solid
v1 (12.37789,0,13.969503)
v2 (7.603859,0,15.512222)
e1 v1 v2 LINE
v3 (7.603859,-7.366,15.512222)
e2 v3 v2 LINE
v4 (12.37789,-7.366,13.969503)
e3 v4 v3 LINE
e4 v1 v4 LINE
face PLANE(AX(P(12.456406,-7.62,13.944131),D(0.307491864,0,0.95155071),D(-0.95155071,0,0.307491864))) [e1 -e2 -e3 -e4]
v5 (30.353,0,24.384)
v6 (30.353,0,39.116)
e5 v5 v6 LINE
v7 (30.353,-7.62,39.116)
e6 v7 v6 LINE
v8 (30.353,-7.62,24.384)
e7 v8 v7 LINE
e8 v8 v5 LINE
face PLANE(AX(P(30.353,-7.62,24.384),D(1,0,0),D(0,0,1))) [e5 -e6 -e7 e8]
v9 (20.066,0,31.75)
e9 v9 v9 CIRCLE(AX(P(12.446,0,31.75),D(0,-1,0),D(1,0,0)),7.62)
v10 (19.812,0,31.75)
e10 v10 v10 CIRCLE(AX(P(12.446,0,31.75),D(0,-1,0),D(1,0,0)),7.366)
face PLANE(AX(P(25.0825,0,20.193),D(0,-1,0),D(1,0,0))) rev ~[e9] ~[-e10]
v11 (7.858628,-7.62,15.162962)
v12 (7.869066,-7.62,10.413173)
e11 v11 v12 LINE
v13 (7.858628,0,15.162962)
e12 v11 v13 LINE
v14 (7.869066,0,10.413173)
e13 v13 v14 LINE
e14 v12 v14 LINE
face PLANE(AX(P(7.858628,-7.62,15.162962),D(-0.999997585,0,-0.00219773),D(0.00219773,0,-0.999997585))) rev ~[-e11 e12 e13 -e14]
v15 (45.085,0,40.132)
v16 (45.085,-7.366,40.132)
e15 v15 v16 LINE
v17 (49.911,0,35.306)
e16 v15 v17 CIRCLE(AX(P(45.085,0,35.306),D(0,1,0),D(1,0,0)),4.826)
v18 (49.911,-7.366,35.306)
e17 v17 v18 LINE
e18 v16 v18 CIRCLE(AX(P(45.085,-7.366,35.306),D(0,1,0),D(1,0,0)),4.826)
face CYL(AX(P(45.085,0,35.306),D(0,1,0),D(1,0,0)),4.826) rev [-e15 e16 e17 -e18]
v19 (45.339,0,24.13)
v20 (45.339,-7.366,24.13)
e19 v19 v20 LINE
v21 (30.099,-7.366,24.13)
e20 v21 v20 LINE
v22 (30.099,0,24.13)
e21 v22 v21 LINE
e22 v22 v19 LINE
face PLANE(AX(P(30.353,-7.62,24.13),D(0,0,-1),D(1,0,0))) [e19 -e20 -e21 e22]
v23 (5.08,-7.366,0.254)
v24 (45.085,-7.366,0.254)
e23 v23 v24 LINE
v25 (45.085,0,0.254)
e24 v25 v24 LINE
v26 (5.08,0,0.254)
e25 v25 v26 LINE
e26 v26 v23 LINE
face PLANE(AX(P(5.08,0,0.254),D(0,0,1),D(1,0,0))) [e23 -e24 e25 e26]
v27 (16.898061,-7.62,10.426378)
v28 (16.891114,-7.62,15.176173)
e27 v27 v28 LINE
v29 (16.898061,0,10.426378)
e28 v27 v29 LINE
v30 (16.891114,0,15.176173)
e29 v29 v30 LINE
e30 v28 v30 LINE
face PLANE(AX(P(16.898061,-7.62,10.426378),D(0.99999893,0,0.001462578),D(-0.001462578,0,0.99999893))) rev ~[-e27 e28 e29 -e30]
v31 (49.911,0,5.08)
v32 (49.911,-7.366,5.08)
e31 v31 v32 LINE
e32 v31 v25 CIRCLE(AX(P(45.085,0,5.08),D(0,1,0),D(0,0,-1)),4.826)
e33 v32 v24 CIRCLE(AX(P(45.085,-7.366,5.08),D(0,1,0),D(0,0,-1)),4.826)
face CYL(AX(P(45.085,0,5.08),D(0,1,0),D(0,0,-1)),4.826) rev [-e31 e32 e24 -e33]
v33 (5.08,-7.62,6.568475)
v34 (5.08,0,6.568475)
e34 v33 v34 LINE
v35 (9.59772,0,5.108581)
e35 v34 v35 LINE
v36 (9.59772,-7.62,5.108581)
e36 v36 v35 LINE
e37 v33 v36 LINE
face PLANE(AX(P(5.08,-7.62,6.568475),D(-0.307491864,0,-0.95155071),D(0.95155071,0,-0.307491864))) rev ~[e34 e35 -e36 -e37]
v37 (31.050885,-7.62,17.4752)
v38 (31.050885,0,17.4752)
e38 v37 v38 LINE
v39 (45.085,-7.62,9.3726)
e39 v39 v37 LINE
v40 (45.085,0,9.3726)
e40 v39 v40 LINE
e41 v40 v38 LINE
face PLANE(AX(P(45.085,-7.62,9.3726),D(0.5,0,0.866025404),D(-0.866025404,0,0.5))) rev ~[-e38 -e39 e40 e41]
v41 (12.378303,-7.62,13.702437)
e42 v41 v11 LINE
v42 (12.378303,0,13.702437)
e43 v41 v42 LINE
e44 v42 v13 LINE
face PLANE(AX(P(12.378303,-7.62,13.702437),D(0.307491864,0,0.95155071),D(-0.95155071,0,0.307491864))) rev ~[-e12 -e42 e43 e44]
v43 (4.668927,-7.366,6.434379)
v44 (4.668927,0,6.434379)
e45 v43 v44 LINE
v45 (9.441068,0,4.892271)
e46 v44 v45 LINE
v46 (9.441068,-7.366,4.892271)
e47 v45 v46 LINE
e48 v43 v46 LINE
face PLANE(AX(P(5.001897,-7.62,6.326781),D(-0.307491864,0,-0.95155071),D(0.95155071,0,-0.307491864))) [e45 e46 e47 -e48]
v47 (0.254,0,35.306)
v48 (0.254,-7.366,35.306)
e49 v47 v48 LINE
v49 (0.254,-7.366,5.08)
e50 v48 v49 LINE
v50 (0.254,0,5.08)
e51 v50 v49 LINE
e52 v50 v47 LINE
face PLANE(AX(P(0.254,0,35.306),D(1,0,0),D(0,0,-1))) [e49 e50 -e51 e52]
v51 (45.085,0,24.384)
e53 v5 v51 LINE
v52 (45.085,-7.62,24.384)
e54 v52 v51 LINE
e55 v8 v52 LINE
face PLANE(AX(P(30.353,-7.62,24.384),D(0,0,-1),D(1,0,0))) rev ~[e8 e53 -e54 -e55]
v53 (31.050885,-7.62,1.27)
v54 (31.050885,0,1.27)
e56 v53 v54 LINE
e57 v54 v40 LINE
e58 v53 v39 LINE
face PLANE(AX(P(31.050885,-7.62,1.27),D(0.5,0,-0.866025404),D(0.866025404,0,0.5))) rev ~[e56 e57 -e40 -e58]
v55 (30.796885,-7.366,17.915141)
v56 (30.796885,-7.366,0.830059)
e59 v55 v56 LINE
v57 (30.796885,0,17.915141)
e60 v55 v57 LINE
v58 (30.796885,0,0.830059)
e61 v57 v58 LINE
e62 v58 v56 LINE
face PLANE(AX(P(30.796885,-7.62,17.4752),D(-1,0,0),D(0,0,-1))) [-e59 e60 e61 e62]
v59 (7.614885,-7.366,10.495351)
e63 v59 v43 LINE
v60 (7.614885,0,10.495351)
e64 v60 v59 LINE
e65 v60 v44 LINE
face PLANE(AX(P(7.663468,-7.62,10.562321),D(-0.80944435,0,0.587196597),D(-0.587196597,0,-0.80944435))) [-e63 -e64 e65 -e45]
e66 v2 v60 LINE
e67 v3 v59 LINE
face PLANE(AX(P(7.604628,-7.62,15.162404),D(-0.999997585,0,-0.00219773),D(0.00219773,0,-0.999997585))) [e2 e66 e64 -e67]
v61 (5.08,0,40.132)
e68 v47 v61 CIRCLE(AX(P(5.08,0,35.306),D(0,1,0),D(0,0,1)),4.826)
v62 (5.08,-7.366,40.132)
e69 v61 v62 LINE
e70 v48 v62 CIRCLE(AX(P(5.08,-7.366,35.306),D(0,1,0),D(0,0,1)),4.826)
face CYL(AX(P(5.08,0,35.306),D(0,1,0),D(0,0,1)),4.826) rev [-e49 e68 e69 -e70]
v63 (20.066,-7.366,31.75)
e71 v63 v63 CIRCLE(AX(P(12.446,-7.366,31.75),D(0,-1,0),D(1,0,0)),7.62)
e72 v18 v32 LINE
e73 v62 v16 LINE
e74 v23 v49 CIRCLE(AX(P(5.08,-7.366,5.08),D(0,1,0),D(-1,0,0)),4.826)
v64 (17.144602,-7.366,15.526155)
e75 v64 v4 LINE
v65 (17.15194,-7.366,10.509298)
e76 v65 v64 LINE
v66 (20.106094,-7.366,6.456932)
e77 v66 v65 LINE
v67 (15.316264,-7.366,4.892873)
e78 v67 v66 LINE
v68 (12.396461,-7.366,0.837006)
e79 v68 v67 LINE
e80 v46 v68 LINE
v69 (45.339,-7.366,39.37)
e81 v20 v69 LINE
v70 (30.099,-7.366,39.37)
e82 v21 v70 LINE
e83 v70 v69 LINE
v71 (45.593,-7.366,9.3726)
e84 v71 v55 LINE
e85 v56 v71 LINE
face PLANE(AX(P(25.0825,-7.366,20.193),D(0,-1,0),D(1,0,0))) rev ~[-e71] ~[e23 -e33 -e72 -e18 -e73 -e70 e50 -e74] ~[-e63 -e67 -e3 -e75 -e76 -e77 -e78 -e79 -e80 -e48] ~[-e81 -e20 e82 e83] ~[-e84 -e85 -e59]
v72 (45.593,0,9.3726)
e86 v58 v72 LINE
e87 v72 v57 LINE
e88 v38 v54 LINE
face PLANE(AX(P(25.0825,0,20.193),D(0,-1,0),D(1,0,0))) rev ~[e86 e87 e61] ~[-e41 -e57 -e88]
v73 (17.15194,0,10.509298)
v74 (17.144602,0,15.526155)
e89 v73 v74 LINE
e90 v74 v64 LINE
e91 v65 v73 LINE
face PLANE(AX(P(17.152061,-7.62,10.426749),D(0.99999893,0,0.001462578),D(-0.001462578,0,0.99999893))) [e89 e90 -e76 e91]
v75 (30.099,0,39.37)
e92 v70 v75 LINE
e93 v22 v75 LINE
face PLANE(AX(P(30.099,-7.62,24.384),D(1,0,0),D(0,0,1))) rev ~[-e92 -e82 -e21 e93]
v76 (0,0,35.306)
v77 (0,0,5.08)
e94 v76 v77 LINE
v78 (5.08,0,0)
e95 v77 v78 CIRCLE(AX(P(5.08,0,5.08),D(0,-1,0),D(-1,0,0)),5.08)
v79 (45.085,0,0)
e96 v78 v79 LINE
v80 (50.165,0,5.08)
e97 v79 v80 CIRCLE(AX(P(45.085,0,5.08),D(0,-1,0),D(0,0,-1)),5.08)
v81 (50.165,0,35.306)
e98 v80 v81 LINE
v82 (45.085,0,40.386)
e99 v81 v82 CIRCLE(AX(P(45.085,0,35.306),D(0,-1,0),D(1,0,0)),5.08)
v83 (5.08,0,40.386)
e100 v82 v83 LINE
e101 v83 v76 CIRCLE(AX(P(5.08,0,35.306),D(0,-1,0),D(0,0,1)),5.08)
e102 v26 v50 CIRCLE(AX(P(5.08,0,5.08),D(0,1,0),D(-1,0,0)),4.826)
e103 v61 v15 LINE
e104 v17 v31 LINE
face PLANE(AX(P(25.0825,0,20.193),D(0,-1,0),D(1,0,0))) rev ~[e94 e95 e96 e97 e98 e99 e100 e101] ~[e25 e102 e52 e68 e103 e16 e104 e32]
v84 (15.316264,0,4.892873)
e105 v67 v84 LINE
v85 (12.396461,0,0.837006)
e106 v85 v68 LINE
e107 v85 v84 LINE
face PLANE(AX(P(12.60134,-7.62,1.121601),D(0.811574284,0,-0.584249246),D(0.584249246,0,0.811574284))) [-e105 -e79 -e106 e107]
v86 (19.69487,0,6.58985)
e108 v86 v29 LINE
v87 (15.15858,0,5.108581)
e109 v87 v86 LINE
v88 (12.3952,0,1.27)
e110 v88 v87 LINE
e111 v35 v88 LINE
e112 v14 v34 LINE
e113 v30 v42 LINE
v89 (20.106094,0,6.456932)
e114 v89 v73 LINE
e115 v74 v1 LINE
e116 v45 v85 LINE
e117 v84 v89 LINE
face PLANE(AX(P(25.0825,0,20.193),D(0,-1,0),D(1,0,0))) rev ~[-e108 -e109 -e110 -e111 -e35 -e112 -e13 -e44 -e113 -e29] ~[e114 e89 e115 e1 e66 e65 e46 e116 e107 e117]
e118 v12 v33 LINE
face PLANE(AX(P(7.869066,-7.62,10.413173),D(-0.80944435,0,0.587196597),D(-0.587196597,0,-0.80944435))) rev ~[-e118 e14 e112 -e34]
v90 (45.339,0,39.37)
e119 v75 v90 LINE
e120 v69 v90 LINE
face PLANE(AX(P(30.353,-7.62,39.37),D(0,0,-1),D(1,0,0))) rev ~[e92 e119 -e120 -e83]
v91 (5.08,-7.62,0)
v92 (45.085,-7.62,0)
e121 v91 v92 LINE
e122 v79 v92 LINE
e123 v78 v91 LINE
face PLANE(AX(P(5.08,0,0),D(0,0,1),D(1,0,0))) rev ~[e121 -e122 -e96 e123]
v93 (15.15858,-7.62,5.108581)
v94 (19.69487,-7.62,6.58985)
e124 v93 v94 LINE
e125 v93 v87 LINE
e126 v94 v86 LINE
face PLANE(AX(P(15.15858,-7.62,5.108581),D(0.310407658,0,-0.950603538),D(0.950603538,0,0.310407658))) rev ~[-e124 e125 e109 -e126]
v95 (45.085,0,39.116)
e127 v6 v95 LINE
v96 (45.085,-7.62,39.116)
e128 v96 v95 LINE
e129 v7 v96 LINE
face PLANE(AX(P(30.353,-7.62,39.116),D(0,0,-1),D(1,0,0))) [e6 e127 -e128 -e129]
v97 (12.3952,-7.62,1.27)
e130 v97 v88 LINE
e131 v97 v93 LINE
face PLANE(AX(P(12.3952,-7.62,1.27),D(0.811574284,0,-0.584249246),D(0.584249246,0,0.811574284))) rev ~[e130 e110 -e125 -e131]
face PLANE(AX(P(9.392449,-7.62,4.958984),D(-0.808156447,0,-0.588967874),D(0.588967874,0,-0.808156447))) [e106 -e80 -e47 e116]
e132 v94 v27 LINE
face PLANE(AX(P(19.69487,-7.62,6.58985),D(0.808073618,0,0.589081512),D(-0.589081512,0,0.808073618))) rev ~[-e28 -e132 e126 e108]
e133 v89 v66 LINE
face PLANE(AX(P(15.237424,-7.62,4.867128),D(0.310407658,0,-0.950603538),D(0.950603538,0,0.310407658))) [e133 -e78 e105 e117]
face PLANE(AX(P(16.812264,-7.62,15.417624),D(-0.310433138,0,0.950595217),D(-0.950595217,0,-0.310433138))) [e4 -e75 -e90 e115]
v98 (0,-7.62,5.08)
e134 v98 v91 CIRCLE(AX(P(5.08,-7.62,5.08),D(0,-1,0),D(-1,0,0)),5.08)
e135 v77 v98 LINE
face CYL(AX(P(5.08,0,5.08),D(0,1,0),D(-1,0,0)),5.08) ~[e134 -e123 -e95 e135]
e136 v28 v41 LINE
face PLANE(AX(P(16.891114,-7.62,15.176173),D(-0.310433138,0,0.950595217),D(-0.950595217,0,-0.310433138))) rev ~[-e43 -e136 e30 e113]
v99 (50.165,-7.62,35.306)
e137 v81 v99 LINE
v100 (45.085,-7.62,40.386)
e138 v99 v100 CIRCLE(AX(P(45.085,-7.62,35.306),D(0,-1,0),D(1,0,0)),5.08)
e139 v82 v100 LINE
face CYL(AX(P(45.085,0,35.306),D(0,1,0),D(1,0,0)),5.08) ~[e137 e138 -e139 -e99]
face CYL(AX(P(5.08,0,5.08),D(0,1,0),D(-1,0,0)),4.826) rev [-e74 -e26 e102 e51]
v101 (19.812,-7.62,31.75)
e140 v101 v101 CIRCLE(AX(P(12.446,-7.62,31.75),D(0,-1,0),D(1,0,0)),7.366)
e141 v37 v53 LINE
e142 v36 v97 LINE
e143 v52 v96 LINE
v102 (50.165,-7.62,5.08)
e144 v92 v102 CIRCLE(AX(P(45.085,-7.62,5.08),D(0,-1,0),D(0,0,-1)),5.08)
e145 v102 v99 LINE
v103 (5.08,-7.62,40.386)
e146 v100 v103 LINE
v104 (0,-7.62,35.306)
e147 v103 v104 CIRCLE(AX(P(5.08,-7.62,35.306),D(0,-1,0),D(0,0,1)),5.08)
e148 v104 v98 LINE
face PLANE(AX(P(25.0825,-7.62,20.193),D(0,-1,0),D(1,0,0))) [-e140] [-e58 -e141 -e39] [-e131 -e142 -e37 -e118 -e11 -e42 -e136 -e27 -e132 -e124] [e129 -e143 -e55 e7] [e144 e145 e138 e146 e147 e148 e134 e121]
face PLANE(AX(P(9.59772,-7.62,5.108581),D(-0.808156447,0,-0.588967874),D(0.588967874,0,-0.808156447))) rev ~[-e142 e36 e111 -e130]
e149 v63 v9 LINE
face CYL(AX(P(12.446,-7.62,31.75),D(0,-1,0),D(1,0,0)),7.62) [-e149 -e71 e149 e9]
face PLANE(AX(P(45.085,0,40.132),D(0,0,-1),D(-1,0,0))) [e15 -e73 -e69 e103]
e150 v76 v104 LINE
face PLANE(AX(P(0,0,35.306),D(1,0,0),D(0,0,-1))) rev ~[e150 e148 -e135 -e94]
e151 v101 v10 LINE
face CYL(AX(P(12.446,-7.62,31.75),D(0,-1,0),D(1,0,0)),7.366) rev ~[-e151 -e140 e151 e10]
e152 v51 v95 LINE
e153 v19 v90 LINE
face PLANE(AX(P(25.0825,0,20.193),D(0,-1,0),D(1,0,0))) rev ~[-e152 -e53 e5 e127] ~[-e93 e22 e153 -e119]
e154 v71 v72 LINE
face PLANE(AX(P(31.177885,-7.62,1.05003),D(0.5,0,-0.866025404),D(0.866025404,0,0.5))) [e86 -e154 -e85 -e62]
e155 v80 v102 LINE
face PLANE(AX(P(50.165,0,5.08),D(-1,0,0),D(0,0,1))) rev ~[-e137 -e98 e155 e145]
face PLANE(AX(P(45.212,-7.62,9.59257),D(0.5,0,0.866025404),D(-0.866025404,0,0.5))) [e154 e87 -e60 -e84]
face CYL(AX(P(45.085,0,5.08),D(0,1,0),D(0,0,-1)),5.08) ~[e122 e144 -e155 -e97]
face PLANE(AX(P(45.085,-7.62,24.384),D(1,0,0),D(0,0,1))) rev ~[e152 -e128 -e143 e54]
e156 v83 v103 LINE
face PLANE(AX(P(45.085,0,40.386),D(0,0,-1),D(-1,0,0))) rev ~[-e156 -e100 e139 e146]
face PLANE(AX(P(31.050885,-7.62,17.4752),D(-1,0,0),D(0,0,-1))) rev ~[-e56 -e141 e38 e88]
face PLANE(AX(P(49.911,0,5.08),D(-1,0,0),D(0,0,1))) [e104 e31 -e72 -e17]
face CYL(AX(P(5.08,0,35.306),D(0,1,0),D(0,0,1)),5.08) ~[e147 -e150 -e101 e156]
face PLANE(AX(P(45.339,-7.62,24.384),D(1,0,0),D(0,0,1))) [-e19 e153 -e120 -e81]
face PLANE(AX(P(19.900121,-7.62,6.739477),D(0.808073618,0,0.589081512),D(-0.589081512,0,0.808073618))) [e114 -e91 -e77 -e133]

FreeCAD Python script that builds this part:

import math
import FreeCAD as App
import Part
import Sketcher
from FreeCAD import Vector
Q = App.Units.Quantity


def faces_at(feature, points):
    """Names of the faces that lie closest to the given points."""
    faces = feature.Shape.Faces
    near = lambda p: min(range(len(faces)), key=lambda i: faces[i].distToShape(Part.Vertex(*p))[0])
    return sorted({f"Face{near(p) + 1}" for p in points})

doc = App.newDocument("Part")
body = doc.addObject("PartDesign::Body", "Body")

sketch1 = body.newObject("Sketcher::SketchObject", "Sketch")
sketch1.AttachmentSupport = (doc.getObject("XZ_Plane"), [""])
sketch1.MapMode = "FlatFace"
sketch1.addGeometry(Part.ArcOfCircle(Part.Circle(Vector(5.08, 5.08, 0), Vector(0, 0, 1), 5.08), math.radians(180), math.radians(270)), False)
sketch1.addGeometry(Part.LineSegment(Vector(5.08, 0, 0), Vector(45.085, 0, 0)), False)
sketch1.addGeometry(Part.ArcOfCircle(Part.Circle(Vector(45.085, 5.08, 0), Vector(0, 0, 1), 5.08), math.radians(-90), math.radians(0)), False)
sketch1.addGeometry(Part.LineSegment(Vector(50.165, 5.08, 0), Vector(50.165, 35.306, 0)), False)
sketch1.addGeometry(Part.ArcOfCircle(Part.Circle(Vector(45.085, 35.306, 0), Vector(0, 0, 1), 5.08), math.radians(0), math.radians(90)), False)
sketch1.addGeometry(Part.LineSegment(Vector(45.085, 40.386, 0), Vector(5.08, 40.386, 0)), False)
sketch1.addGeometry(Part.ArcOfCircle(Part.Circle(Vector(5.08, 35.306, 0), Vector(0, 0, 1), 5.08), math.radians(90), math.radians(180)), False)
sketch1.addGeometry(Part.LineSegment(Vector(0, 35.306, 0), Vector(0, 5.08, 0)), False)
sketch1.addConstraint(Sketcher.Constraint("Tangent", 0, 2, 1, 1))
sketch1.addConstraint(Sketcher.Constraint("Tangent", 1, 2, 2, 1))
sketch1.addConstraint(Sketcher.Constraint("Tangent", 2, 2, 3, 1))
sketch1.addConstraint(Sketcher.Constraint("Tangent", 3, 2, 4, 1))
sketch1.addConstraint(Sketcher.Constraint("Tangent", 4, 2, 5, 1))
sketch1.addConstraint(Sketcher.Constraint("Tangent", 5, 2, 6, 1))
sketch1.addConstraint(Sketcher.Constraint("Tangent", 6, 2, 7, 1))
sketch1.addConstraint(Sketcher.Constraint("Tangent", 7, 2, 0, 1))
sketch1.addConstraint(Sketcher.Constraint("Horizontal", 1))
sketch1.addConstraint(Sketcher.Constraint("Vertical", 3))
sketch1.addConstraint(Sketcher.Constraint("Horizontal", 5))
sketch1.addConstraint(Sketcher.Constraint("Vertical", 7))
sketch1.addConstraint(Sketcher.Constraint("Equal", 0, 2))
sketch1.addConstraint(Sketcher.Constraint("Equal", 2, 4))
sketch1.addConstraint(Sketcher.Constraint("Equal", 4, 6))
sketch1.addConstraint(Sketcher.Constraint("PointOnObject", 0, 2, -1))
sketch1.addConstraint(Sketcher.Constraint("PointOnObject", 6, 2, -2))
sketch1.addConstraint(Sketcher.Constraint("Radius", 0, Q("0.2 in")))
sketch1.addConstraint(Sketcher.Constraint("DistanceY", 3, 1, 3, 2, Q("1.19 in")))
sketch1.addConstraint(Sketcher.Constraint("DistanceX", 1, 1, 1, 2, Q("1.575 in")))
pad1 = body.newObject("PartDesign::Pad", "Pad")
pad1.Profile = sketch1
pad1.Length = Q("0.3 in")

sketch2 = body.newObject("Sketcher::SketchObject", "Sketch001")
sketch2.AttachmentSupport = (doc.getObject("XZ_Plane"), [""])
sketch2.MapMode = "FlatFace"
sketch2.AttachmentOffset = App.Placement(Vector(0, 0, 0.3 * 25.4), App.Rotation())
sketch2.addGeometry(Part.LineSegment(Vector(30.353, 39.116, 0), Vector(30.353, 24.384, 0)), False)
sketch2.addGeometry(Part.LineSegment(Vector(30.353, 24.384, 0), Vector(45.085, 24.384, 0)), False)
sketch2.addGeometry(Part.LineSegment(Vector(45.085, 24.384, 0), Vector(45.085, 39.116, 0)), False)
sketch2.addGeometry(Part.LineSegment(Vector(45.085, 39.116, 0), Vector(30.353, 39.116, 0)), False)
sketch2.addConstraint(Sketcher.Constraint("Coincident", 0, 2, 1, 1))
sketch2.addConstraint(Sketcher.Constraint("Coincident", 1, 2, 2, 1))
sketch2.addConstraint(Sketcher.Constraint("Coincident", 2, 2, 3, 1))
sketch2.addConstraint(Sketcher.Constraint("Coincident", 3, 2, 0, 1))
sketch2.addConstraint(Sketcher.Constraint("Vertical", 0))
sketch2.addConstraint(Sketcher.Constraint("Horizontal", 1))
sketch2.addConstraint(Sketcher.Constraint("Vertical", 2))
sketch2.addConstraint(Sketcher.Constraint("Horizontal", 3))
sketch2.addConstraint(Sketcher.Constraint("Equal", 3, 0))
sketch2.addConstraint(Sketcher.Constraint("DistanceX", 1, 1, 1, 2, Q("0.58 in")))
sketch2.addConstraint(Sketcher.Constraint("DistanceY", -1, 1, 0, 2, Q("0.96 in")))
sketch2.addConstraint(Sketcher.Constraint("DistanceX", -1, 1, 0, 2, Q("1.195 in")))
pocket1 = body.newObject("PartDesign::Pocket", "Pocket")
pocket1.Profile = sketch2
pocket1.Length = Q("1 in")

sketch3 = body.newObject("Sketcher::SketchObject", "Sketch002")
sketch3.AttachmentSupport = (doc.getObject("XZ_Plane"), [""])
sketch3.MapMode = "FlatFace"
sketch3.AttachmentOffset = App.Placement(Vector(0, 0, 0.3 * 25.4), App.Rotation())
sketch3.addGeometry(Part.LineSegment(Vector(31.050885, 17.4752, 0), Vector(31.050885, 1.27, 0)), False)
sketch3.addGeometry(Part.LineSegment(Vector(31.050885, 1.27, 0), Vector(45.085, 9.3726, 0)), False)
sketch3.addGeometry(Part.LineSegment(Vector(45.085, 9.3726, 0), Vector(31.050885, 17.4752, 0)), False)
sketch3.addConstraint(Sketcher.Constraint("Coincident", 0, 2, 1, 1))
sketch3.addConstraint(Sketcher.Constraint("Coincident", 1, 2, 2, 1))
sketch3.addConstraint(Sketcher.Constraint("Coincident", 2, 2, 0, 1))
sketch3.addConstraint(Sketcher.Constraint("Vertical", 0))
sketch3.addConstraint(Sketcher.Constraint("Equal", 1, 2))
sketch3.addConstraint(Sketcher.Constraint("Angle", 1, Q("30 deg")))
sketch3.addConstraint(Sketcher.Constraint("DistanceY", 0, 2, 0, 1, Q("0.638 in")))
sketch3.addConstraint(Sketcher.Constraint("DistanceY", -1, 1, 0, 2, Q("0.05 in")))
sketch3.addConstraint(Sketcher.Constraint("DistanceX", -1, 1, 1, 2, Q("1.775 in")))
pocket2 = body.newObject("PartDesign::Pocket", "Pocket001")
pocket2.Profile = sketch3
pocket2.Length = Q("1 in")

sketch4 = body.newObject("Sketcher::SketchObject", "Sketch003")
sketch4.AttachmentSupport = (doc.getObject("XZ_Plane"), [""])
sketch4.MapMode = "FlatFace"
sketch4.AttachmentOffset = App.Placement(Vector(0, 0, 0.3 * 25.4), App.Rotation())
sketch4.addGeometry(Part.LineSegment(Vector(9.59772, 5.108581, 0), Vector(12.3952, 1.27, 0)), False)
sketch4.addGeometry(Part.LineSegment(Vector(12.3952, 1.27, 0), Vector(15.15858, 5.108581, 0)), False)
sketch4.addGeometry(Part.LineSegment(Vector(15.15858, 5.108581, 0), Vector(19.69487, 6.58985, 0)), False)
sketch4.addGeometry(Part.LineSegment(Vector(19.69487, 6.58985, 0), Vector(16.898061, 10.426378, 0)), False)
sketch4.addGeometry(Part.LineSegment(Vector(16.898061, 10.426378, 0), Vector(16.891114, 15.176173, 0)), False)
sketch4.addGeometry(Part.LineSegment(Vector(16.891114, 15.176173, 0), Vector(12.378303, 13.702437, 0)), False)
sketch4.addGeometry(Part.LineSegment(Vector(12.378303, 13.702437, 0), Vector(7.858628, 15.162962, 0)), False)
sketch4.addGeometry(Part.LineSegment(Vector(7.858628, 15.162962, 0), Vector(7.869066, 10.413173, 0)), False)
sketch4.addGeometry(Part.LineSegment(Vector(7.869066, 10.413173, 0), Vector(5.08, 6.568475, 0)), False)
sketch4.addGeometry(Part.LineSegment(Vector(5.08, 6.568475, 0), Vector(9.59772, 5.108581, 0)), False)
sketch4.addConstraint(Sketcher.Constraint("Coincident", 0, 2, 1, 1))
sketch4.addConstraint(Sketcher.Constraint("Coincident", 1, 2, 2, 1))
sketch4.addConstraint(Sketcher.Constraint("Coincident", 2, 2, 3, 1))
sketch4.addConstraint(Sketcher.Constraint("Coincident", 3, 2, 4, 1))
sketch4.addConstraint(Sketcher.Constraint("Coincident", 4, 2, 5, 1))
sketch4.addConstraint(Sketcher.Constraint("Coincident", 5, 2, 6, 1))
sketch4.addConstraint(Sketcher.Constraint("Coincident", 6, 2, 7, 1))
sketch4.addConstraint(Sketcher.Constraint("Coincident", 7, 2, 8, 1))
sketch4.addConstraint(Sketcher.Constraint("Coincident", 8, 2, 9, 1))
sketch4.addConstraint(Sketcher.Constraint("Coincident", 9, 2, 0, 1))
sketch4.addConstraint(Sketcher.Constraint("Parallel", 6, 9))
sketch4.addConstraint(Sketcher.Constraint("Horizontal", 1, 2, 9, 2))
sketch4.addConstraint(Sketcher.Constraint("Equal", 0, 4))
sketch4.addConstraint(Sketcher.Constraint("Equal", 4, 6))
sketch4.addConstraint(Sketcher.Constraint("Equal", 6, 7))
sketch4.addConstraint(Sketcher.Constraint("Equal", 7, 8))
sketch4.addConstraint(Sketcher.Constraint("Equal", 3, 9))
sketch4.addConstraint(Sketcher.Constraint("DistanceX", -1, 1, 8, 2, Q("0.2 in")))
sketch4.addConstraint(Sketcher.Constraint("DistanceY", -1, 1, 0, 2, Q("0.05 in")))
sketch4.addConstraint(Sketcher.Constraint("Distance", 0, Q("0.187 in")))
sketch4.addConstraint(Sketcher.Constraint("DistanceX", -1, 1, 0, 2, Q("0.488 in")))
sketch4.addConstraint(Sketcher.Constraint("DistanceY", 7, 2, 4, 2, 4.762999))
sketch4.addConstraint(Sketcher.Constraint("DistanceY", 8, 2, 7, 2, 3.844699))
sketch4.addConstraint(Sketcher.Constraint("Distance", 2, 4.77201))
sketch4.addConstraint(Sketcher.Constraint("DistanceX", -1, 1, 1, 2, 15.15858))
sketch4.addConstraint(Sketcher.Constraint("DistanceY", -1, 1, 1, 2, 5.108581))
sketch4.addConstraint(Sketcher.Constraint("DistanceX", -1, 1, 2, 2, 19.69487))
sketch4.addConstraint(Sketcher.Constraint("DistanceX", -1, 1, 3, 2, 16.898061))
sketch4.addConstraint(Sketcher.Constraint("DistanceX", 5, 2, 4, 2, 4.512811))
sketch4.addConstraint(Sketcher.Constraint("DistanceX", 6, 2, 7, 2, 0.010439))
pocket3 = body.newObject("PartDesign::Pocket", "Pocket002")
pocket3.Profile = sketch4
pocket3.Length = Q("1 in")

sketch5 = body.newObject("Sketcher::SketchObject", "Sketch004")
sketch5.AttachmentSupport = (doc.getObject("XZ_Plane"), [""])
sketch5.MapMode = "FlatFace"
sketch5.AttachmentOffset = App.Placement(Vector(0, 0, 0.3 * 25.4), App.Rotation())
sketch5.addGeometry(Part.Circle(Vector(12.446, 31.75, 0), Vector(0, 0, 1), 7.366), False)
sketch5.addConstraint(Sketcher.Constraint("Diameter", 0, Q("0.58 in")))
sketch5.addConstraint(Sketcher.Constraint("DistanceX", -1, 1, 0, 3, Q("0.49 in")))
sketch5.addConstraint(Sketcher.Constraint("DistanceY", -1, 1, 0, 3, Q("1.25 in")))
pocket4 = body.newObject("PartDesign::Pocket", "Pocket003")
pocket4.Profile = sketch5
pocket4.Length = Q("1 in")
doc.recompute()

thickness = body.newObject("PartDesign::Thickness", "Thickness")
thickness.Base = (pocket4, faces_at(pocket4, [(25.082, 0, 20.193)]))
thickness.Value = Q("0.01 in")
thickness.Reversed = True
thickness.Join = "Intersection"

doc.recompute()
